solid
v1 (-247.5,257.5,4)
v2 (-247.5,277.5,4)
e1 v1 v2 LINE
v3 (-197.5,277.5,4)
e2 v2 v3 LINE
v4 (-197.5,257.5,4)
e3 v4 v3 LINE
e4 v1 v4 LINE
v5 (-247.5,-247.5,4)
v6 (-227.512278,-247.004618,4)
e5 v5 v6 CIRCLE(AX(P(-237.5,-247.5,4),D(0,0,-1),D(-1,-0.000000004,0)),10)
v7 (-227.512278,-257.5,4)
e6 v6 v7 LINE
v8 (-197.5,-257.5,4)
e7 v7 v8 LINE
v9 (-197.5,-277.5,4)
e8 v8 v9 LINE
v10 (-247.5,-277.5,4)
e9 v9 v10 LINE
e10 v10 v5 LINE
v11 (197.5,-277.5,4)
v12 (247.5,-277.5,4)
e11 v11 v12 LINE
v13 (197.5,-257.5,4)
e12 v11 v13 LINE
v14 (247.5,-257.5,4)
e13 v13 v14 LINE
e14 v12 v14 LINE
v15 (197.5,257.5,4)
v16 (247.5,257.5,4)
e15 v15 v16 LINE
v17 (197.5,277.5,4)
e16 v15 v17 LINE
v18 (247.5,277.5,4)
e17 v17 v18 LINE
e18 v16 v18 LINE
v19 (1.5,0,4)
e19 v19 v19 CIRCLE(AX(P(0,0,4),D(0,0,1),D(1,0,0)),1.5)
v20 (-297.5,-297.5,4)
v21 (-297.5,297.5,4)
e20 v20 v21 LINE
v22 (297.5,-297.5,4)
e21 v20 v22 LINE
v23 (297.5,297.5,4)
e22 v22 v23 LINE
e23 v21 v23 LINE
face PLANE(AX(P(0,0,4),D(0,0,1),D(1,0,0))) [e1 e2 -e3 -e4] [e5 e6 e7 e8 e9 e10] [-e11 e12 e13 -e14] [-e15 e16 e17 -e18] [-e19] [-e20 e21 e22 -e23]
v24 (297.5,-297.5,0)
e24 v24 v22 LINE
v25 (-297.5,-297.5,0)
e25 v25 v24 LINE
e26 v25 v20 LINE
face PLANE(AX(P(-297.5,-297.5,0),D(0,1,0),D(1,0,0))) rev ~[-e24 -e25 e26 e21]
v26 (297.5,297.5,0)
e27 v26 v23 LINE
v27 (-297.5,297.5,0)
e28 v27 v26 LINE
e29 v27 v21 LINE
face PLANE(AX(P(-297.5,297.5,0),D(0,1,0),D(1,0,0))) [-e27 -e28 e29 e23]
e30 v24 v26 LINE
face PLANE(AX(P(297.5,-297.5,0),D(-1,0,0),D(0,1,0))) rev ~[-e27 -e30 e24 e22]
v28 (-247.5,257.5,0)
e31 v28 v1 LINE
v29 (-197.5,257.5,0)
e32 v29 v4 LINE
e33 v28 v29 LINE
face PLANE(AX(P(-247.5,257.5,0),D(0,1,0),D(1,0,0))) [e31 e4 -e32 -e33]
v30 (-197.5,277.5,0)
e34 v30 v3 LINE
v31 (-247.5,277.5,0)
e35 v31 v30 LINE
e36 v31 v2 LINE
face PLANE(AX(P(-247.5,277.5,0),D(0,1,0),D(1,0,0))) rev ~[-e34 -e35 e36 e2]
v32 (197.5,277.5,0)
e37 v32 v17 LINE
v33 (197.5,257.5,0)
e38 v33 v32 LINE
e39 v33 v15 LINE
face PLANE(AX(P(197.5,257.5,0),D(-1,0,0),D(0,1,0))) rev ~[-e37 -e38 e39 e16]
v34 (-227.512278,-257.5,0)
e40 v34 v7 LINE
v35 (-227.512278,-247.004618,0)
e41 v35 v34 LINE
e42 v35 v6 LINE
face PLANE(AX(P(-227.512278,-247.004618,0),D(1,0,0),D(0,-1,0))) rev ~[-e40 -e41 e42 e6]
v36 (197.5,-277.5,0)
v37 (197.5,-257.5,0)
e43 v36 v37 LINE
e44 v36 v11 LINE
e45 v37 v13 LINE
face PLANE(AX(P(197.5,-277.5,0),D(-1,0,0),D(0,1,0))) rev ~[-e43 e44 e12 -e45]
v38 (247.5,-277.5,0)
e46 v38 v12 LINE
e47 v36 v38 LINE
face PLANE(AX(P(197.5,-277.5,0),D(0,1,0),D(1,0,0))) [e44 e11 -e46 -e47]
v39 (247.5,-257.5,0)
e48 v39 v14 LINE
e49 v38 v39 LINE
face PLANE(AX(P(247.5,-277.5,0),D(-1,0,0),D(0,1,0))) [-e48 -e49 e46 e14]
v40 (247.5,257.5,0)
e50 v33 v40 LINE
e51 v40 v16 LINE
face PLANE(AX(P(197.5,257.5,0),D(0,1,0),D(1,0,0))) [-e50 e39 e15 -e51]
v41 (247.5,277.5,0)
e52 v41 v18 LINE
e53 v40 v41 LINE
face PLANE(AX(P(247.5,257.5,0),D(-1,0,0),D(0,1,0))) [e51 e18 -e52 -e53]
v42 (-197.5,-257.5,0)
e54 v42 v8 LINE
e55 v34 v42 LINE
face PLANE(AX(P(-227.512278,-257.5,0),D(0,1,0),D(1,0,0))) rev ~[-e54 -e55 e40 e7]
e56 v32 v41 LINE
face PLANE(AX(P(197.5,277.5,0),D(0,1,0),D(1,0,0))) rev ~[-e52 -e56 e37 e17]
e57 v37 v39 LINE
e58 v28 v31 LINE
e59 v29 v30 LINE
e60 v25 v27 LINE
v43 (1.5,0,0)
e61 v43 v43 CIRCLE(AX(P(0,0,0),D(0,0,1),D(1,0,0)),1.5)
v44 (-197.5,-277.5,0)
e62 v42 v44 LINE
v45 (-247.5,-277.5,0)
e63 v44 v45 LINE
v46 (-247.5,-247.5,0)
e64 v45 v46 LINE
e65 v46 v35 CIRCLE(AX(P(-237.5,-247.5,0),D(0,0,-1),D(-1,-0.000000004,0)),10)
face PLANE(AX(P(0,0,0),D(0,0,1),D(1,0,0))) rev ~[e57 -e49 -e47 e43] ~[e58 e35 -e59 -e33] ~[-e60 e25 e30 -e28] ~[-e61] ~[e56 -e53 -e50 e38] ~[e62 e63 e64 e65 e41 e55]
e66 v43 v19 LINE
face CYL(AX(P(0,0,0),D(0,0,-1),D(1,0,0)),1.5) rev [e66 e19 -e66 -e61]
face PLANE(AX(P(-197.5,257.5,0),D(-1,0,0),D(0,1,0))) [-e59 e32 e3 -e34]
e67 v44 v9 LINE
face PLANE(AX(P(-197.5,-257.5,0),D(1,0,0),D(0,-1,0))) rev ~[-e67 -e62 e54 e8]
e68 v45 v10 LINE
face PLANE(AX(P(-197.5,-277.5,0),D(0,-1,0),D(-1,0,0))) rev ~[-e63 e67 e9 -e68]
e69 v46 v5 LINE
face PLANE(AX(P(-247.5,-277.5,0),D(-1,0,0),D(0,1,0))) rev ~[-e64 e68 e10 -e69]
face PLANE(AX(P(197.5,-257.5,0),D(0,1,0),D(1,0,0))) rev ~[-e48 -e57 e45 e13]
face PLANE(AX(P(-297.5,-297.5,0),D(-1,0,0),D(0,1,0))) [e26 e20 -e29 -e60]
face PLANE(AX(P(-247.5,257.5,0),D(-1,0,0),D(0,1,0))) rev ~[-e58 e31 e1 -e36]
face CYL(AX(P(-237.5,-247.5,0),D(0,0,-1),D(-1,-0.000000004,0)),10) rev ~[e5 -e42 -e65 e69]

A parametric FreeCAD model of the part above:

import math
import FreeCAD as App
import Part
import Sketcher

V = App.Vector

doc = App.newDocument("Part")
body = doc.addObject("PartDesign::Body", "Body")

# Sketch on XY plane
sketch1 = body.newObject("Sketcher::SketchObject", "Sketch")
sketch1.AttachmentSupport = (doc.getObject("XY_Plane"), [""])
sketch1.MapMode = "FlatFace"
sketch1.addGeometry(Part.LineSegment(V(-297.5, 297.5, 0), V(-297.5, -297.5, 0)), False)
sketch1.addGeometry(Part.LineSegment(V(-297.5, -297.5, 0), V(297.5, -297.5, 0)), False)
sketch1.addGeometry(Part.LineSegment(V(297.5, -297.5, 0), V(297.5, 297.5, 0)), False)
sketch1.addGeometry(Part.LineSegment(V(297.5, 297.5, 0), V(-297.5, 297.5, 0)), False)
sketch1.addGeometry(Part.LineSegment(V(-197.5, -257.5, 0), V(-197.5, -277.5, 0)), False)
sketch1.addGeometry(Part.LineSegment(V(-197.5, -277.5, 0), V(-247.5, -277.5, 0)), False)
sketch1.addGeometry(Part.LineSegment(V(-247.5, -277.5, 0), V(-247.5, -247.5, 0)), False)
sketch1.addGeometry(Part.ArcOfCircle(Part.Circle(V(-237.5, -247.5, 0), V(0, 0, 1), 10), math.radians(3), math.radians(180)), False)
sketch1.addGeometry(Part.LineSegment(V(-227.5, -247, 0), V(-227.5, -257.5, 0)), False)
sketch1.addGeometry(Part.LineSegment(V(-227.5, -257.5, 0), V(-197.5, -257.5, 0)), False)
sketch1.addGeometry(Part.LineSegment(V(247.5, -277.5, 0), V(197.5, -277.5, 0)), False)
sketch1.addGeometry(Part.LineSegment(V(197.5, -277.5, 0), V(197.5, -257.5, 0)), False)
sketch1.addGeometry(Part.LineSegment(V(197.5, -257.5, 0), V(247.5, -257.5, 0)), False)
sketch1.addGeometry(Part.LineSegment(V(247.5, -257.5, 0), V(247.5, -277.5, 0)), False)
sketch1.addGeometry(Part.LineSegment(V(-197.5, 257.5, 0), V(-247.5, 257.5, 0)), False)
sketch1.addGeometry(Part.LineSegment(V(-247.5, 257.5, 0), V(-247.5, 277.5, 0)), False)
sketch1.addGeometry(Part.LineSegment(V(-247.5, 277.5, 0), V(-197.5, 277.5, 0)), False)
sketch1.addGeometry(Part.LineSegment(V(-197.5, 277.5, 0), V(-197.5, 257.5, 0)), False)
sketch1.addGeometry(Part.Circle(V(0, 0, 0), V(0, 0, 1), 1.5), False)
sketch1.addGeometry(Part.LineSegment(V(247.5, 257.5, 0), V(197.5, 257.5, 0)), False)
sketch1.addGeometry(Part.LineSegment(V(197.5, 257.5, 0), V(197.5, 277.5, 0)), False)
sketch1.addGeometry(Part.LineSegment(V(197.5, 277.5, 0), V(247.5, 277.5, 0)), False)
sketch1.addGeometry(Part.LineSegment(V(247.5, 277.5, 0), V(247.5, 257.5, 0)), False)
sketch1.addConstraint(Sketcher.Constraint("Coincident", 0, 2, 1, 1))
sketch1.addConstraint(Sketcher.Constraint("Coincident", 1, 2, 2, 1))
sketch1.addConstraint(Sketcher.Constraint("Coincident", 2, 2, 3, 1))
sketch1.addConstraint(Sketcher.Constraint("Coincident", 3, 2, 0, 1))
sketch1.addConstraint(Sketcher.Constraint("Coincident", 4, 2, 5, 1))
sketch1.addConstraint(Sketcher.Constraint("Coincident", 5, 2, 6, 1))
sketch1.addConstraint(Sketcher.Constraint("Tangent", 6, 2, 7, 2))
sketch1.addConstraint(Sketcher.Constraint("Coincident", 7, 1, 8, 1))
sketch1.addConstraint(Sketcher.Constraint("Coincident", 8, 2, 9, 1))
sketch1.addConstraint(Sketcher.Constraint("Coincident", 9, 2, 4, 1))
sketch1.addConstraint(Sketcher.Constraint("Coincident", 10, 2, 11, 1))
sketch1.addConstraint(Sketcher.Constraint("Coincident", 11, 2, 12, 1))
sketch1.addConstraint(Sketcher.Constraint("Coincident", 12, 2, 13, 1))
sketch1.addConstraint(Sketcher.Constraint("Coincident", 13, 2, 10, 1))
sketch1.addConstraint(Sketcher.Constraint("Coincident", 14, 2, 15, 1))
sketch1.addConstraint(Sketcher.Constraint("Coincident", 15, 2, 16, 1))
sketch1.addConstraint(Sketcher.Constraint("Coincident", 16, 2, 17, 1))
sketch1.addConstraint(Sketcher.Constraint("Coincident", 17, 2, 14, 1))
sketch1.addConstraint(Sketcher.Constraint("Coincident", 19, 2, 20, 1))
sketch1.addConstraint(Sketcher.Constraint("Coincident", 20, 2, 21, 1))
sketch1.addConstraint(Sketcher.Constraint("Coincident", 21, 2, 22, 1))
sketch1.addConstraint(Sketcher.Constraint("Coincident", 22, 2, 19, 1))
sketch1.addConstraint(Sketcher.Constraint("Vertical", 0))
sketch1.addConstraint(Sketcher.Constraint("Horizontal", 1))
sketch1.addConstraint(Sketcher.Constraint("Vertical", 2))
sketch1.addConstraint(Sketcher.Constraint("Horizontal", 3))
sketch1.addConstraint(Sketcher.Constraint("Vertical", 4))
sketch1.addConstraint(Sketcher.Constraint("Horizontal", 5))
sketch1.addConstraint(Sketcher.Constraint("Vertical", 6))
sketch1.addConstraint(Sketcher.Constraint("Vertical", 8))
sketch1.addConstraint(Sketcher.Constraint("Horizontal", 9))
sketch1.addConstraint(Sketcher.Constraint("Horizontal", 10))
sketch1.addConstraint(Sketcher.Constraint("Vertical", 11))
sketch1.addConstraint(Sketcher.Constraint("Horizontal", 12))
sketch1.addConstraint(Sketcher.Constraint("Vertical", 13))
sketch1.addConstraint(Sketcher.Constraint("Horizontal", 14))
sketch1.addConstraint(Sketcher.Constraint("Vertical", 15))
sketch1.addConstraint(Sketcher.Constraint("Horizontal", 16))
sketch1.addConstraint(Sketcher.Constraint("Vertical", 17))
sketch1.addConstraint(Sketcher.Constraint("Horizontal", 19))
sketch1.addConstraint(Sketcher.Constraint("Vertical", 20))
sketch1.addConstraint(Sketcher.Constraint("Horizontal", 21))
sketch1.addConstraint(Sketcher.Constraint("Vertical", 22))
sketch1.addConstraint(Sketcher.Constraint("Coincident", 18, 3, -1, 1))
sketch1.addConstraint(Sketcher.Constraint("Symmetric", 0, 2, 2, 2, -1, 1))
sketch1.addConstraint(Sketcher.Constraint("Symmetric", 12, 2, 14, 2, -1, 1))
sketch1.addConstraint(Sketcher.Constraint("Symmetric", 10, 2, 16, 2, -1, 1))
sketch1.addConstraint(Sketcher.Constraint("Symmetric", 9, 2, 19, 2, -1, 1))
sketch1.addConstraint(Sketcher.Constraint("Symmetric", 5, 2, 21, 2, -1, 1))
sketch1.addConstraint(Sketcher.Constraint("Symmetric", 4, 2, 10, 2, -2))
sketch1.addConstraint(Sketcher.Constraint("Symmetric", 14, 2, 22, 2, -2))
sketch1.addConstraint(Sketcher.Constraint("Equal", 3, 0))
sketch1.addConstraint(Sketcher.Constraint("Diameter", 18, 3.0))
sketch1.addConstraint(Sketcher.Constraint("Radius", 7, 10.0))
sketch1.addConstraint(Sketcher.Constraint("DistanceX", 1, 1, 1, 2, 595.0))
sketch1.addConstraint(Sketcher.Constraint("DistanceX", 5, 2, 5, 1, 50.0))
sketch1.addConstraint(Sketcher.Constraint("DistanceY", 4, 2, 4, 1, 20.0))
sketch1.addConstraint(Sketcher.Constraint("DistanceY", 6, 1, 6, 2, 30.0))
sketch1.addConstraint(Sketcher.Constraint("DistanceX", 0, 2, 7, 3, 60.0))
sketch1.addConstraint(Sketcher.Constraint("DistanceY", 0, 2, 7, 3, 50.0))
sketch1.addConstraint(Sketcher.Constraint("DistanceX", 9, 1, 9, 2, 30.012278))
pad1 = body.newObject("PartDesign::Pad", "Pad")
pad1.Profile = sketch1
pad1.Length = 4

doc.recompute()
